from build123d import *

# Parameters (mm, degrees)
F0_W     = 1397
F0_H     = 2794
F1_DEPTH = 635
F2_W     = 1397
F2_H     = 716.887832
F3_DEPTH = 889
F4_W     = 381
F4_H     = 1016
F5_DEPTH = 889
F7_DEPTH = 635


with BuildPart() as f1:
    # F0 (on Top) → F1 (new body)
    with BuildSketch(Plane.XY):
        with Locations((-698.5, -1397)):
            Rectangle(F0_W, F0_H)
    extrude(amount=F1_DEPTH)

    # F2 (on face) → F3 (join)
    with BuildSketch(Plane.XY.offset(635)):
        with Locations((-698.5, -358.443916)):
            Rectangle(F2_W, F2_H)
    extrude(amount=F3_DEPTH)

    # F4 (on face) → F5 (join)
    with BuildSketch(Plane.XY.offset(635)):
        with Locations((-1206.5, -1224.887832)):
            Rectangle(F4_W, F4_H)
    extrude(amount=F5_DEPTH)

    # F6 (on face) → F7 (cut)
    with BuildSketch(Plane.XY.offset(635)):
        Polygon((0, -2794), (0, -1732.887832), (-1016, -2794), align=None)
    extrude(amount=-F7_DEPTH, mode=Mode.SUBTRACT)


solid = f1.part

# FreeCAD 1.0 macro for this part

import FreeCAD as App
import Part
import Sketcher
Q = App.Units.Quantity

doc = App.newDocument("Part")
body = doc.addObject("PartDesign::Body", "Body")

# Sketch on XY plane
sketch1 = doc.addObject("Sketcher::SketchObject", "Sketch")
body.addObject(sketch1)
sketch1.AttachmentSupport = (doc.XY_Plane, [""])
sketch1.MapMode = "FlatFace"
sketch1.addGeometry([
    Part.LineSegment(App.Vector(-1397, 0, 0), App.Vector(-1397, -2794, 0)),
    Part.LineSegment(App.Vector(-1397, -2794, 0), App.Vector(0, -2794, 0)),
    Part.LineSegment(App.Vector(0, -2794, 0), App.Vector(0, 0, 0)),
    Part.LineSegment(App.Vector(0, 0, 0), App.Vector(-1397, 0, 0)),
], False)
sketch1.addConstraint([
    Sketcher.Constraint("Coincident", 0, 2, 1, 1),
    Sketcher.Constraint("Coincident", 1, 2, 2, 1),
    Sketcher.Constraint("Coincident", 2, 2, 3, 1),
    Sketcher.Constraint("Coincident", 3, 2, 0, 1),
    Sketcher.Constraint("Vertical", 0),
    Sketcher.Constraint("Horizontal", 1),
    Sketcher.Constraint("Vertical", 2),
    Sketcher.Constraint("Horizontal", 3),
    Sketcher.Constraint("Coincident", 2, 2, -1, 1),
    Sketcher.Constraint("DistanceX", 1, 1, 1, 2, Q("55 in")),
    Sketcher.Constraint("DistanceY", 0, 2, 0, 1, Q("110 in")),
])
pad1 = doc.addObject("PartDesign::Pad", "Pad")
body.addObject(pad1)
pad1.Profile = sketch1
pad1.Length = Q("25 in")

# Sketch on XY plane
sketch2 = doc.addObject("Sketcher::SketchObject", "Sketch001")
body.addObject(sketch2)
sketch2.AttachmentSupport = (doc.XY_Plane, [""])
sketch2.MapMode = "FlatFace"
sketch2.AttachmentOffset = App.Placement(App.Vector(0, 0, 25 * 25.4), App.Rotation())
sketch2.addGeometry([
    Part.LineSegment(App.Vector(-1397, 0, 0), App.Vector(-1397, -716.887832, 0)),
    Part.LineSegment(App.Vector(-1397, -716.887832, 0), App.Vector(0, -716.887832, 0)),
    Part.LineSegment(App.Vector(0, -716.887832, 0), App.Vector(0, 0, 0)),
    Part.LineSegment(App.Vector(0, 0, 0), App.Vector(-1397, 0, 0)),
], False)
sketch2.addConstraint([
    Sketcher.Constraint("Coincident", 0, 2, 1, 1),
    Sketcher.Constraint("Coincident", 1, 2, 2, 1),
    Sketcher.Constraint("Coincident", 2, 2, 3, 1),
    Sketcher.Constraint("Coincident", 3, 2, 0, 1),
    Sketcher.Constraint("Vertical", 0),
    Sketcher.Constraint("Horizontal", 1),
    Sketcher.Constraint("Vertical", 2),
    Sketcher.Constraint("Horizontal", 3),
    Sketcher.Constraint("Coincident", 2, 2, -1, 1),
    Sketcher.Constraint("DistanceX", 1, 1, 1, 2, Q("55 in")),
    Sketcher.Constraint("DistanceY", 0, 2, 0, 1, Q("716.887832 mm")),
])
pad2 = doc.addObject("PartDesign::Pad", "Pad001")
body.addObject(pad2)
pad2.Profile = sketch2
pad2.Length = Q("35 in")

# Sketch on XY plane
sketch3 = doc.addObject("Sketcher::SketchObject", "Sketch002")
body.addObject(sketch3)
sketch3.AttachmentSupport = (doc.XY_Plane, [""])
sketch3.MapMode = "FlatFace"
sketch3.AttachmentOffset = App.Placement(App.Vector(0, 0, 25 * 25.4), App.Rotation())
sketch3.addGeometry([
    Part.LineSegment(App.Vector(-1397, -716.887832, 0), App.Vector(-1397, -1732.887832, 0)),
    Part.LineSegment(App.Vector(-1397, -1732.887832, 0), App.Vector(-1016, -1732.887832, 0)),
    Part.LineSegment(App.Vector(-1016, -1732.887832, 0), App.Vector(-1016, -716.887832, 0)),
    Part.LineSegment(App.Vector(-1016, -716.887832, 0), App.Vector(-1397, -716.887832, 0)),
], False)
sketch3.addConstraint([
    Sketcher.Constraint("Coincident", 0, 2, 1, 1),
    Sketcher.Constraint("Coincident", 1, 2, 2, 1),
    Sketcher.Constraint("Coincident", 2, 2, 3, 1),
    Sketcher.Constraint("Coincident", 3, 2, 0, 1),
    Sketcher.Constraint("Vertical", 0),
    Sketcher.Constraint("Horizontal", 1),
    Sketcher.Constraint("Vertical", 2),
    Sketcher.Constraint("Horizontal", 3),
    Sketcher.Constraint("DistanceX", 1, 1, 1, 2, Q("15 in")),
    Sketcher.Constraint("DistanceY", 0, 2, 0, 1, Q("40 in")),
    Sketcher.Constraint("DistanceX", 0, 2, -1, 1, Q("55 in")),
    Sketcher.Constraint("DistanceY", 0, 2, -1, 1, Q("1732.887832 mm")),
])
pad3 = doc.addObject("PartDesign::Pad", "Pad002")
body.addObject(pad3)
pad3.Profile = sketch3
pad3.Length = Q("35 in")

# Sketch on XY plane
sketch4 = doc.addObject("Sketcher::SketchObject", "Sketch003")
body.addObject(sketch4)
sketch4.AttachmentSupport = (doc.XY_Plane, [""])
sketch4.MapMode = "FlatFace"
sketch4.AttachmentOffset = App.Placement(App.Vector(0, 0, 25 * 25.4), App.Rotation())
sketch4.addGeometry([
    Part.LineSegment(App.Vector(0, -2794, 0), App.Vector(0, -1732.887832, 0)),
    Part.LineSegment(App.Vector(0, -1732.887832, 0), App.Vector(-1016, -2794, 0)),
    Part.LineSegment(App.Vector(-1016, -2794, 0), App.Vector(0, -2794, 0)),
], False)
sketch4.addConstraint([
    Sketcher.Constraint("Coincident", 0, 2, 1, 1),
    Sketcher.Constraint("Coincident", 1, 2, 2, 1),
    Sketcher.Constraint("Coincident", 2, 2, 0, 1),
    Sketcher.Constraint("Vertical", 0),
    Sketcher.Constraint("Horizontal", 2),
    Sketcher.Constraint("PointOnObject", 0, 2, -2),
    Sketcher.Constraint("DistanceX", 2, 1, 2, 2, Q("40 in")),
    Sketcher.Constraint("DistanceY", 1, 2, -1, 1, Q("110 in")),
    Sketcher.Constraint("DistanceY", 0, 1, 0, 2, Q("1061.112168 mm")),
])
pocket1 = doc.addObject("PartDesign::Pocket", "Pocket")
body.addObject(pocket1)
pocket1.Profile = sketch4
pocket1.Length = Q("25 in")

doc.recompute()
